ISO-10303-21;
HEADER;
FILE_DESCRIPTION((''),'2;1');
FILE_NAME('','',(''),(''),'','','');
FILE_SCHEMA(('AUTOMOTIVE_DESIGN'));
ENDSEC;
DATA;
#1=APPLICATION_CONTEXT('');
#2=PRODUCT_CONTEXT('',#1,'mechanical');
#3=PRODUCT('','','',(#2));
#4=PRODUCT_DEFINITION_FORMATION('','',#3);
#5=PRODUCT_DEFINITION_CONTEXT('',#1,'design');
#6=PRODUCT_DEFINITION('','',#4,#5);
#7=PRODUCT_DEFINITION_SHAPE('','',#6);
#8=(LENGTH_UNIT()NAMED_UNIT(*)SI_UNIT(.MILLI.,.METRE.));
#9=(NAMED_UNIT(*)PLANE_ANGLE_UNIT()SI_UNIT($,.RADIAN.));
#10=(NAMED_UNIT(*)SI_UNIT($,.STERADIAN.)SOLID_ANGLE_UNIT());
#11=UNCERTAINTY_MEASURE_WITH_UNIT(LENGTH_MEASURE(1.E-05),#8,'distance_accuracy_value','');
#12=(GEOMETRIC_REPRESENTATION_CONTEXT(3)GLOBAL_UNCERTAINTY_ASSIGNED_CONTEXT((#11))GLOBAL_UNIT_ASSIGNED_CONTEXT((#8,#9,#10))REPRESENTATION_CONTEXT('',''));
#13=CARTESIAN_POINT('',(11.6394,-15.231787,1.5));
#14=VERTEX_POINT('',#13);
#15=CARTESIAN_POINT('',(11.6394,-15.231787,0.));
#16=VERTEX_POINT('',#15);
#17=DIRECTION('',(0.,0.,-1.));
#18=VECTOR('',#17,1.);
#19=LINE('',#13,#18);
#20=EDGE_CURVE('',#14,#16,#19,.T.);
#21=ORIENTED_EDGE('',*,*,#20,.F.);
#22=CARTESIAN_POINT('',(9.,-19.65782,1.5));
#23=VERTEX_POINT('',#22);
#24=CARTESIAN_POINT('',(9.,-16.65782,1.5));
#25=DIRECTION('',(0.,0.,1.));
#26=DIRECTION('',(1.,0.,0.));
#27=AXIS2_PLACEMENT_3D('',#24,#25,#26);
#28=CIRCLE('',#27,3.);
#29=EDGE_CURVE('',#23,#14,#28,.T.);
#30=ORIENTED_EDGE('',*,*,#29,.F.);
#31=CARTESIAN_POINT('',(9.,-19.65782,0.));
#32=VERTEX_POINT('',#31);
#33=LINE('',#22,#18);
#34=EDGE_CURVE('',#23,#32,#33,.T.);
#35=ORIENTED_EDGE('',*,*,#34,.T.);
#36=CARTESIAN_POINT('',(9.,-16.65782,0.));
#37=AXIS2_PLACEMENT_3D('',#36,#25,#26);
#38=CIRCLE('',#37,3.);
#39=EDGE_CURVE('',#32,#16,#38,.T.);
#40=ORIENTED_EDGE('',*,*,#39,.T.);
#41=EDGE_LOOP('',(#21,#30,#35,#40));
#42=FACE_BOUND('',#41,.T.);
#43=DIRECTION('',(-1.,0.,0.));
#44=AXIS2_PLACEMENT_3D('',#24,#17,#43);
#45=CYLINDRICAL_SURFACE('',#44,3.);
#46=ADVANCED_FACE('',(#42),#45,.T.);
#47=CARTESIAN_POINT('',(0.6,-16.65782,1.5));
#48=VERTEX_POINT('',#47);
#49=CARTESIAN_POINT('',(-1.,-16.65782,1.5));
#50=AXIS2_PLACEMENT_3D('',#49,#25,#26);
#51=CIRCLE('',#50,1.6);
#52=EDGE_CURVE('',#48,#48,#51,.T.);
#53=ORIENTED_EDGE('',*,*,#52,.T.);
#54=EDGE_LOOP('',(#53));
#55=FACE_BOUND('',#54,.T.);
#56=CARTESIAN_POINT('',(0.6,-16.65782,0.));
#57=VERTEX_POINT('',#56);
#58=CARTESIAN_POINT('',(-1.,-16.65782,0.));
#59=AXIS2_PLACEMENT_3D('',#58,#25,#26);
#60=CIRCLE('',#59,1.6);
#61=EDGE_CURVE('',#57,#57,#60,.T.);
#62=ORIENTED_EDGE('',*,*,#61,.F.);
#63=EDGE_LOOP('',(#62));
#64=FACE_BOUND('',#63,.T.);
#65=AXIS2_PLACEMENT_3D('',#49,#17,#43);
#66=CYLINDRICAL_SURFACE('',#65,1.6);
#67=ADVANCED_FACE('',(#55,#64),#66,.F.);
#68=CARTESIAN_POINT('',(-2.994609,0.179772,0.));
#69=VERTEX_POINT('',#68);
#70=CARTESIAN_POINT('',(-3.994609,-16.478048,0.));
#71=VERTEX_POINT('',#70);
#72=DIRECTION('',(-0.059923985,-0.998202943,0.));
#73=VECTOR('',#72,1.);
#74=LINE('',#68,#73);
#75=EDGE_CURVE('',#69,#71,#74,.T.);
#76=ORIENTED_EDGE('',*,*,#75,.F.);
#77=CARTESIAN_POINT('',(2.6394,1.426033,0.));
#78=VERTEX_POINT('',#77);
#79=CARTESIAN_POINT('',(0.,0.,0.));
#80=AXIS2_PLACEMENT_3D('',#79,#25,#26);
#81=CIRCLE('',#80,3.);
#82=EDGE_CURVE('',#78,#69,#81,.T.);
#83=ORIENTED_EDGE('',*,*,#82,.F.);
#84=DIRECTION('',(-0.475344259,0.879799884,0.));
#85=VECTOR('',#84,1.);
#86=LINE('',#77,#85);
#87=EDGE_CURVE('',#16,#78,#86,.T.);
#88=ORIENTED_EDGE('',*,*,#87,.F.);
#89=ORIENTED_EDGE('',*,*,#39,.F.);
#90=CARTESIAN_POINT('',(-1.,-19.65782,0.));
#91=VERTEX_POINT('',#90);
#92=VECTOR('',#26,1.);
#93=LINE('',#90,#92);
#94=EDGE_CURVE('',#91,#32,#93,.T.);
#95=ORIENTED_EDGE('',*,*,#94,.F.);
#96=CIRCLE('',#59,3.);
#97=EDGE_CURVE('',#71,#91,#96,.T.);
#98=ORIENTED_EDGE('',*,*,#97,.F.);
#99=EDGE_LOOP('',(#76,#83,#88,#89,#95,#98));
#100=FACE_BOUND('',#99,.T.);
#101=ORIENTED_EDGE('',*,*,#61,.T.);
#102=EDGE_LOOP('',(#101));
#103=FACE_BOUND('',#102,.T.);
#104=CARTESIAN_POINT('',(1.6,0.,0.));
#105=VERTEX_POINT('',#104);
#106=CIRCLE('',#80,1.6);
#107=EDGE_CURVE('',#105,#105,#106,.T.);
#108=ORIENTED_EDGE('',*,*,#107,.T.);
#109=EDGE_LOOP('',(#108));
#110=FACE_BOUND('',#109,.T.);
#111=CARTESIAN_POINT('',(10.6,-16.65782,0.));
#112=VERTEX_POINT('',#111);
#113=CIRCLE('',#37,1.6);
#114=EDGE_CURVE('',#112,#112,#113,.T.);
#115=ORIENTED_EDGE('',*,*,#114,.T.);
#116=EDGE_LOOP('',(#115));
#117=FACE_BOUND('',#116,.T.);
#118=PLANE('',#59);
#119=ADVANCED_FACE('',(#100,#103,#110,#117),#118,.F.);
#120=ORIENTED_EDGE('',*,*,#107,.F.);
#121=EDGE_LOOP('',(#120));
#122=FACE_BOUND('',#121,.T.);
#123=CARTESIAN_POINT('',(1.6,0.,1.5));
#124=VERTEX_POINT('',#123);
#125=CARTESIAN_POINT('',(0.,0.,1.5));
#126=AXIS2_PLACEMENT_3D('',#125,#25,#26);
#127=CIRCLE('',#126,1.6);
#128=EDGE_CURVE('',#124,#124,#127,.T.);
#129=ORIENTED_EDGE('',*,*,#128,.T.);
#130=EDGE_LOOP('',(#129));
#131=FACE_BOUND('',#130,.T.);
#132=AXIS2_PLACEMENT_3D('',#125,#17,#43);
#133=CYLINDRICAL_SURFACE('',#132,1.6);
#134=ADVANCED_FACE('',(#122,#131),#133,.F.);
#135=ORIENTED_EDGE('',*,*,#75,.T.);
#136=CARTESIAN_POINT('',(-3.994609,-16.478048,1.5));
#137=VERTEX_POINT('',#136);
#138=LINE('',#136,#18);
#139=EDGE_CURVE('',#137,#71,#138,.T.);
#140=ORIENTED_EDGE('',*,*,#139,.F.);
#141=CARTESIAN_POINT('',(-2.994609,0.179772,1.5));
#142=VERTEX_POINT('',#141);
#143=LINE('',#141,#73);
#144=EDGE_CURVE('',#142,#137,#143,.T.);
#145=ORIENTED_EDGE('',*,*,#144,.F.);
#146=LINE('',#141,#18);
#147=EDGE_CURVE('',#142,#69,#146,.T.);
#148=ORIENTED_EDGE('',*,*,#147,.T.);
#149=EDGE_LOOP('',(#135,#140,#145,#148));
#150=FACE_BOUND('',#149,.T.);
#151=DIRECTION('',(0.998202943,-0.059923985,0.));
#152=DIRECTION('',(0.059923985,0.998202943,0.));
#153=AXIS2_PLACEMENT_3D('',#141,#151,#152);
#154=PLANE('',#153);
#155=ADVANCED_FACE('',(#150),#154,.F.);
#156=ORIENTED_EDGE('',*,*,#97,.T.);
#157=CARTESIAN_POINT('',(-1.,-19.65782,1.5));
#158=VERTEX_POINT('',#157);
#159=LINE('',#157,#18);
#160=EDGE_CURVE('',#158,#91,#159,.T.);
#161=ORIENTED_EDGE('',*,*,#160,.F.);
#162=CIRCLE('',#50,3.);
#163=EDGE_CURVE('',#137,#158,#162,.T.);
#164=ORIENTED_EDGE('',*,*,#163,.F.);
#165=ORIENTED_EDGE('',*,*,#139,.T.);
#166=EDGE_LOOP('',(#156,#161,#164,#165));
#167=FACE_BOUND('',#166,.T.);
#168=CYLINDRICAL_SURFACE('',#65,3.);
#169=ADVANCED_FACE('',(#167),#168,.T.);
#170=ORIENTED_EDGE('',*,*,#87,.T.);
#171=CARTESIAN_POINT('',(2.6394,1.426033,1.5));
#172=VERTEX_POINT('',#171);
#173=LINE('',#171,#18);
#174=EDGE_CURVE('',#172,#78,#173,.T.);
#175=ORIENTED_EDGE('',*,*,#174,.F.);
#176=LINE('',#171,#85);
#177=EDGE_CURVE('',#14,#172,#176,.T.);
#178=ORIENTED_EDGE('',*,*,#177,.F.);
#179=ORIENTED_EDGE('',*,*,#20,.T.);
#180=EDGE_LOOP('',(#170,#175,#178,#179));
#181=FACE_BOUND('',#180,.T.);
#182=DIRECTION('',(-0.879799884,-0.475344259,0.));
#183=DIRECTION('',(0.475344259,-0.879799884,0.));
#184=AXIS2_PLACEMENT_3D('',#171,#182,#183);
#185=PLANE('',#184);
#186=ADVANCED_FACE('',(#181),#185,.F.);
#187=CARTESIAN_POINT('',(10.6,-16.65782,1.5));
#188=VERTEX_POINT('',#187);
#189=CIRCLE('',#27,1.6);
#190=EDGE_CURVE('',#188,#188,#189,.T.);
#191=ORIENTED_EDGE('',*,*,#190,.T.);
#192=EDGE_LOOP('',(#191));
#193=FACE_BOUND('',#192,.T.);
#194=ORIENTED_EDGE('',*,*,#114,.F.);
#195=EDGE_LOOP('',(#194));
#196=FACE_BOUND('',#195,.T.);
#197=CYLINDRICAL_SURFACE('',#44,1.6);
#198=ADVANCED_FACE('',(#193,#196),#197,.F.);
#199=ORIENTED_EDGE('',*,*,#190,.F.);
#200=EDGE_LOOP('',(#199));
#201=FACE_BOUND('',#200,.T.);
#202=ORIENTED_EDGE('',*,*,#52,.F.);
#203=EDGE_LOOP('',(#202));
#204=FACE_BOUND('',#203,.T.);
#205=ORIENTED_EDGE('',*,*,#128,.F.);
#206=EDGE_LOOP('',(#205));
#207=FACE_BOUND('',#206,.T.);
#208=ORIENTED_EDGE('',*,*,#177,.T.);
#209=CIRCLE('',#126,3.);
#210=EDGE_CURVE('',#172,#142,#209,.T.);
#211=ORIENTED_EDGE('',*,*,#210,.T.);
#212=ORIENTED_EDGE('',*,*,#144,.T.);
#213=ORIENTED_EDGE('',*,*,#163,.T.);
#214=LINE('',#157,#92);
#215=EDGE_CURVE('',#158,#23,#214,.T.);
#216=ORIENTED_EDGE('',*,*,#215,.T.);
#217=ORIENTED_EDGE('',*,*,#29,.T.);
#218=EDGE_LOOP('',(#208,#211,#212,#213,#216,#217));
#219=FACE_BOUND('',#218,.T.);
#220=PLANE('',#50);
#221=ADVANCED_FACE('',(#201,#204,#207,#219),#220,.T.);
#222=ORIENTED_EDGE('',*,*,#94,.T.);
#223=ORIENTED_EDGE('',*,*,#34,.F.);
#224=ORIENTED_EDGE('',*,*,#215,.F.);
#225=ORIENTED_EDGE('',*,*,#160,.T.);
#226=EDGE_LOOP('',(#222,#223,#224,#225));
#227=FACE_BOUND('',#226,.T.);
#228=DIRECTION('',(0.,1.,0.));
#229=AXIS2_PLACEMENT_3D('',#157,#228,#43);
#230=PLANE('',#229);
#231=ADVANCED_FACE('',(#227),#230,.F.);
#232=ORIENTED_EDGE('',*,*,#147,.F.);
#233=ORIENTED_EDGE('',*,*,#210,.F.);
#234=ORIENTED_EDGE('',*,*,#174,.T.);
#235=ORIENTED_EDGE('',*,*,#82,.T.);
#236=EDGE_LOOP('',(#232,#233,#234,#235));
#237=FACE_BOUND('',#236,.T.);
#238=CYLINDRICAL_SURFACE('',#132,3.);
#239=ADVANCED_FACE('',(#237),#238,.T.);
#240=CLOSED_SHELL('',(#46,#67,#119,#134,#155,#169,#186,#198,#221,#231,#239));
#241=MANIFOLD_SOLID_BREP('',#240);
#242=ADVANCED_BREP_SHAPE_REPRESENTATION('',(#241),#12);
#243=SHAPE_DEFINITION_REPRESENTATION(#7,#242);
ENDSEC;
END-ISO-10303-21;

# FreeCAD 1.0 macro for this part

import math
import FreeCAD as App
import Part
import Sketcher
from FreeCAD import Vector

doc = App.newDocument("Part")
params = doc.addObject("Spreadsheet::Sheet", "Params")
for row, (alias, value) in enumerate([
    ("sketch1_radius", "3 mm"),
    ("sketch1_diameter", "3.2 mm"),
    ("sketch1_width", "10 mm"),
    ("pad1_length", "1.5 mm"),
], start=1):
    params.set(f"A{row}", alias)
    params.set(f"B{row}", "=" + value)
    params.setAlias(f"B{row}", alias)

body = doc.addObject("PartDesign::Body", "Body")

sketch1 = body.newObject("Sketcher::SketchObject", "Sketch")
sketch1.AttachmentSupport = (doc.getObject("XY_Plane"), [""])
sketch1.MapMode = "FlatFace"
sketch1.addGeometry(Part.LineSegment(Vector(-1, -19.7, 0), Vector(9, -19.7, 0)), False)
sketch1.addGeometry(Part.ArcOfCircle(Part.Circle(Vector(9, -16.7, 0), Vector(0, 0, 1), 3), math.radians(-90), math.radians(28)), False)
sketch1.addGeometry(Part.LineSegment(Vector(11.6, -15.2, 0), Vector(2.6, 1.4, 0)), False)
sketch1.addGeometry(Part.ArcOfCircle(Part.Circle(Vector(0, 0, 0), Vector(0, 0, 1), 3), math.radians(28), math.radians(177)), False)
sketch1.addGeometry(Part.LineSegment(Vector(-3, 0.2, 0), Vector(-4, -16.5, 0)), False)
sketch1.addGeometry(Part.ArcOfCircle(Part.Circle(Vector(-1, -16.7, 0), Vector(0, 0, 1), 3), math.radians(177), math.radians(270)), False)
sketch1.addGeometry(Part.Circle(Vector(-1, -16.7, 0), Vector(0, 0, 1), 1.6), False)
sketch1.addGeometry(Part.Circle(Vector(9, -16.7, 0), Vector(0, 0, 1), 1.6), False)
sketch1.addGeometry(Part.Circle(Vector(0, 0, 0), Vector(0, 0, 1), 1.6), False)
sketch1.addConstraint(Sketcher.Constraint("Tangent", 0, 2, 1, 1))
sketch1.addConstraint(Sketcher.Constraint("Tangent", 1, 2, 2, 1))
sketch1.addConstraint(Sketcher.Constraint("Tangent", 2, 2, 3, 1))
sketch1.addConstraint(Sketcher.Constraint("Tangent", 3, 2, 4, 1))
sketch1.addConstraint(Sketcher.Constraint("Tangent", 4, 2, 5, 1))
sketch1.addConstraint(Sketcher.Constraint("Tangent", 5, 2, 0, 1))
sketch1.addConstraint(Sketcher.Constraint("Horizontal", 0))
sketch1.addConstraint(Sketcher.Constraint("Coincident", 3, 3, -1, 1))
sketch1.addConstraint(Sketcher.Constraint("Coincident", 8, 3, -1, 1))
sketch1.addConstraint(Sketcher.Constraint("Coincident", 6, 3, 5, 3))
sketch1.addConstraint(Sketcher.Constraint("Coincident", 7, 3, 1, 3))
sketch1.addConstraint(Sketcher.Constraint("Equal", 1, 3))
sketch1.addConstraint(Sketcher.Constraint("Equal", 3, 5))
sketch1.addConstraint(Sketcher.Constraint("Equal", 6, 7))
sketch1.addConstraint(Sketcher.Constraint("Equal", 7, 8))
sketch1.addConstraint(Sketcher.Constraint("Radius", 1, 3.0))
sketch1.addConstraint(Sketcher.Constraint("Diameter", 6, 3.2))
sketch1.addConstraint(Sketcher.Constraint("DistanceX", 0, 1, 0, 2, 10.0))
sketch1.addConstraint(Sketcher.Constraint("DistanceX", -1, 1, 1, 3, 9.0))
sketch1.addConstraint(Sketcher.Constraint("DistanceX", -1, 1, 1, 2, 11.6394))
sketch1.setExpression("Constraints[15]", "Params.sketch1_radius")
sketch1.setExpression("Constraints[16]", "Params.sketch1_diameter")
sketch1.setExpression("Constraints[17]", "Params.sketch1_width")
pad1 = body.newObject("PartDesign::Pad", "Pad")
pad1.Profile = sketch1
pad1.setExpression("Length", "Params.pad1_length")

doc.recompute()
